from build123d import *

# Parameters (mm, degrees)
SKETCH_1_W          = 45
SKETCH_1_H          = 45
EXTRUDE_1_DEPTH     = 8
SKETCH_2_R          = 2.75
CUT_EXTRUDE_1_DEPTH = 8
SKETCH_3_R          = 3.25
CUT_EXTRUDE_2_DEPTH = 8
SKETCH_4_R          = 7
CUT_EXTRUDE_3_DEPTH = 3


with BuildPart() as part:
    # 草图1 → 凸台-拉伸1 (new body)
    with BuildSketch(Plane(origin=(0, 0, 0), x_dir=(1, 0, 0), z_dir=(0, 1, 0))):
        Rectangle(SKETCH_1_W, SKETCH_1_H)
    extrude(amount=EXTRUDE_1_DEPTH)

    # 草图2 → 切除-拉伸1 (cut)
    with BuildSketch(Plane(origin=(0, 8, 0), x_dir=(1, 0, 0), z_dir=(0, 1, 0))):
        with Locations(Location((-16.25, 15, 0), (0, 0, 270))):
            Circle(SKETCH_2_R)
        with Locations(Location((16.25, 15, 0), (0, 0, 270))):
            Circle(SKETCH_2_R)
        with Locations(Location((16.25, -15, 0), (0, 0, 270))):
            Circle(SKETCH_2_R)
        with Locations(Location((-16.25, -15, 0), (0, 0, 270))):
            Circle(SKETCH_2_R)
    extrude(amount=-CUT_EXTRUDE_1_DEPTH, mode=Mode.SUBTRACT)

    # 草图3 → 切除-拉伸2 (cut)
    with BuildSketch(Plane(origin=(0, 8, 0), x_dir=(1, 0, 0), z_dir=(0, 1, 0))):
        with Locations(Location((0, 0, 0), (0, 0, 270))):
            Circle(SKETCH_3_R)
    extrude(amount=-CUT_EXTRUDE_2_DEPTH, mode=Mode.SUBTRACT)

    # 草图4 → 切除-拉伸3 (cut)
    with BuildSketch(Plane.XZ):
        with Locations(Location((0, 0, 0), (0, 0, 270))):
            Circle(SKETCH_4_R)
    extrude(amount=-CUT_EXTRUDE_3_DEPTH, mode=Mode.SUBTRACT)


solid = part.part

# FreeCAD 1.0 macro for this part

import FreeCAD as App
import Part
import Sketcher
Q = App.Units.Quantity


def add_polygon(sketch, points):
    """Adds a closed chain of lines whose ends are joined by coincident constraints."""
    first, n = sketch.GeometryCount, len(points)
    for a, b in zip(points, points[1:] + points[:1]):
        sketch.addGeometry(Part.LineSegment(App.Vector(*a, 0), App.Vector(*b, 0)), False)
    for i in range(n):
        sketch.addConstraint(Sketcher.Constraint("Coincident", first + i, 2, first + (i + 1) % n, 1))

doc = App.newDocument("Part")
body = doc.addObject("PartDesign::Body", "Body")

# Sketch on XZ plane
sketch1 = doc.addObject("Sketcher::SketchObject", "Sketch")
body.addObject(sketch1)
sketch1.AttachmentSupport = (doc.XZ_Plane, [""])
sketch1.MapMode = "FlatFace"
add_polygon(sketch1, [(-22, -22), (-22, 22), (22, 22), (22, -22)])  # lines 0-3
sketch1.addConstraint([
    Sketcher.Constraint("Vertical", 0),
    Sketcher.Constraint("Horizontal", 1),
    Sketcher.Constraint("Vertical", 2),
    Sketcher.Constraint("Horizontal", 3),
    Sketcher.Constraint("Symmetric", 0, 2, 2, 2, -1, 1),
    Sketcher.Constraint("Equal", 3, 0),
    Sketcher.Constraint("DistanceX", 1, 1, 1, 2, Q("45 mm")),
])
pad1 = doc.addObject("PartDesign::Pad", "Pad")
body.addObject(pad1)
pad1.Profile = sketch1
pad1.Length = 8
pad1.Reversed = True

# Sketch on XZ plane
sketch2 = doc.addObject("Sketcher::SketchObject", "Sketch001")
body.addObject(sketch2)
sketch2.AttachmentSupport = (doc.XZ_Plane, [""])
sketch2.MapMode = "FlatFace"
sketch2.AttachmentOffset = App.Placement(App.Vector(0, 0, -8), App.Rotation())
sketch2.addGeometry([
    Part.Circle(App.Vector(-16.2, -15, 0), App.Vector(0, 0, 1), 2.8),
    Part.Circle(App.Vector(16.2, -15, 0), App.Vector(0, 0, 1), 2.8),
    Part.Circle(App.Vector(16.2, 15, 0), App.Vector(0, 0, 1), 2.8),
    Part.Circle(App.Vector(-16.2, 15, 0), App.Vector(0, 0, 1), 2.8),
], False)
sketch2.addConstraint([
    Sketcher.Constraint("Equal", 0, 1),
    Sketcher.Constraint("Equal", 1, 2),
    Sketcher.Constraint("Equal", 2, 3),
    Sketcher.Constraint("Symmetric", 0, 3, 2, 3, -1, 1),
    Sketcher.Constraint("Symmetric", 1, 3, 3, 3, -1, 1),
    Sketcher.Constraint("Symmetric", 0, 3, 1, 3, -2),
    Sketcher.Constraint("Diameter", 0, Q("5.5 mm")),
    Sketcher.Constraint("DistanceY", 0, 3, -1, 1, Q("15 mm")),
    Sketcher.Constraint("DistanceX", 0, 3, 1, 3, Q("32.5 mm")),
])
pocket1 = doc.addObject("PartDesign::Pocket", "Pocket")
body.addObject(pocket1)
pocket1.Profile = sketch2
pocket1.Length = 8
pocket1.Reversed = True

# Sketch on XZ plane
sketch3 = doc.addObject("Sketcher::SketchObject", "Sketch002")
body.addObject(sketch3)
sketch3.AttachmentSupport = (doc.XZ_Plane, [""])
sketch3.MapMode = "FlatFace"
sketch3.AttachmentOffset = App.Placement(App.Vector(0, 0, -8), App.Rotation())
sketch3.addGeometry(Part.Circle(App.Vector(0, 0, 0), App.Vector(0, 0, 1), 3.2), False)
sketch3.addConstraint([
    Sketcher.Constraint("Coincident", 0, 3, -1, 1),
    Sketcher.Constraint("Diameter", 0, Q("6.5 mm")),
])
pocket2 = doc.addObject("PartDesign::Pocket", "Pocket001")
body.addObject(pocket2)
pocket2.Profile = sketch3
pocket2.Length = 8
pocket2.Reversed = True

# Sketch on XZ plane
sketch4 = doc.addObject("Sketcher::SketchObject", "Sketch003")
body.addObject(sketch4)
sketch4.AttachmentSupport = (doc.XZ_Plane, [""])
sketch4.MapMode = "FlatFace"
sketch4.addGeometry(Part.Circle(App.Vector(0, 0, 0), App.Vector(0, 0, 1), 7), False)
sketch4.addConstraint([
    Sketcher.Constraint("Coincident", 0, 3, -1, 1),
    Sketcher.Constraint("Diameter", 0, Q("14 mm")),
])
pocket3 = doc.addObject("PartDesign::Pocket", "Pocket002")
body.addObject(pocket3)
pocket3.Profile = sketch4
pocket3.Length = 3

doc.recompute()
